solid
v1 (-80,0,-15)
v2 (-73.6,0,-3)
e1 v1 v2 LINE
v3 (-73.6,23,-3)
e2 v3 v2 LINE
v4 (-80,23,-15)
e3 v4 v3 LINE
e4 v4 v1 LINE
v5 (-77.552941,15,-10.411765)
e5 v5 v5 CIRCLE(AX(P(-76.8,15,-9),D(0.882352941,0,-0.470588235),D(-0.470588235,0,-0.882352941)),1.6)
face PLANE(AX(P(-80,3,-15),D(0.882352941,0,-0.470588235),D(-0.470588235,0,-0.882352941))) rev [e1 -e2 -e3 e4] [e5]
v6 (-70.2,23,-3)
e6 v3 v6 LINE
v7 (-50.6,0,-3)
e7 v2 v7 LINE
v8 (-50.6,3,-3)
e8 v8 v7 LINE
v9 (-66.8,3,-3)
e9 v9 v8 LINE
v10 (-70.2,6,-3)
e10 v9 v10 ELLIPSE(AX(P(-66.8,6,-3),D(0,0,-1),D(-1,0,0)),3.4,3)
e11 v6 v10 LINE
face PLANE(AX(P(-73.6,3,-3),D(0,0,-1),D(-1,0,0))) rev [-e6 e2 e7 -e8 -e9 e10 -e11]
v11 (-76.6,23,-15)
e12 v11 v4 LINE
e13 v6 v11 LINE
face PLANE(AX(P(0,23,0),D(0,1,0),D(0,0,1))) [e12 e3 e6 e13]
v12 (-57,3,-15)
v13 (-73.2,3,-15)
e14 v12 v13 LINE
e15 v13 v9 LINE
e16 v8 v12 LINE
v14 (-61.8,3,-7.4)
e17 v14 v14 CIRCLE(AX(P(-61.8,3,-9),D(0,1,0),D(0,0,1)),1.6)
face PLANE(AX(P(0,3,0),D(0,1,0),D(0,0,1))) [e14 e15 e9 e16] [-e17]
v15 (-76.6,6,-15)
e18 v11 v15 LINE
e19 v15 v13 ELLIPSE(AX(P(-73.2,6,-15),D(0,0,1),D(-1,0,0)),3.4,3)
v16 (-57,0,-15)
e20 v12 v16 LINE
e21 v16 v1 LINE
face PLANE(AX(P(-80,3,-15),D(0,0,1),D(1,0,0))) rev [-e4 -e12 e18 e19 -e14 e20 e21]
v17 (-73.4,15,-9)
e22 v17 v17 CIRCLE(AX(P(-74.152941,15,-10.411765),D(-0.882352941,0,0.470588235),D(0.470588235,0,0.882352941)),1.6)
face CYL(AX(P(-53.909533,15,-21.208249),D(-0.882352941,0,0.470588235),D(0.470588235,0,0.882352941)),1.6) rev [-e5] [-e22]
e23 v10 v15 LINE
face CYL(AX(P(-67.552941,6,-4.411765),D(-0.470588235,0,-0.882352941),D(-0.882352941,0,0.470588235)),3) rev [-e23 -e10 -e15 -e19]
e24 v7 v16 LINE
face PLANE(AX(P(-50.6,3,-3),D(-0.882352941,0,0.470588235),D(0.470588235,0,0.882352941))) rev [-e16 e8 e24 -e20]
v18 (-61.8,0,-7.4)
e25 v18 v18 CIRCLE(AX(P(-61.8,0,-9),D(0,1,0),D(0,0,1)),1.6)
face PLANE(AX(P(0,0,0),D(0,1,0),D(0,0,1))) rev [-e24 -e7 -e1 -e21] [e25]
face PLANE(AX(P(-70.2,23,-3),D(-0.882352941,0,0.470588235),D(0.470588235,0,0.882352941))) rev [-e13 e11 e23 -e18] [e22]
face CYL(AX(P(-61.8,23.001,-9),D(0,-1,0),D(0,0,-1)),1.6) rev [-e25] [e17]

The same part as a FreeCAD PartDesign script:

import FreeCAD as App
import Part
import Sketcher

V = App.Vector
Q = App.Units.Quantity


def edges_at(feature, points):
    """Names of the edges that pass closest to the given points."""
    edges = feature.Shape.Edges
    near = lambda p: min(range(len(edges)), key=lambda i: edges[i].distToShape(Part.Vertex(*p))[0])
    return sorted({f"Edge{near(p) + 1}" for p in points})

doc = App.newDocument("Part")
params = doc.addObject("Spreadsheet::Sheet", "Params")
for row, (alias, value) in enumerate([
    ("sketch1_width", "23 mm"),
    ("sketch1_length", "13.6 mm"),
    ("pad1_length", "3 mm"),
    ("sketch2_width", "3.4 mm"),
    ("pad2_length", "20 mm"),
    ("sketch3_diameter", "3.2 mm"),
    ("sketch4_diameter", "3.2 mm"),
    ("fillet_radius", "3 mm"),
], start=1):
    params.set(f"A{row}", alias)
    params.set(f"B{row}", "=" + value)
    params.setAlias(f"B{row}", alias)

body = doc.addObject("PartDesign::Body", "Body")

# Sketch on XZ plane
sketch1 = body.newObject("Sketcher::SketchObject", "Sketch")
sketch1.AttachmentSupport = (doc.getObject("XZ_Plane"), [""])
sketch1.MapMode = "FlatFace"
sketch1.addGeometry(Part.LineSegment(V(-57, -15, 0), V(-80, -15, 0)), False)
sketch1.addGeometry(Part.LineSegment(V(-80, -15, 0), V(-74, -3, 0)), False)
sketch1.addGeometry(Part.LineSegment(V(-74, -3, 0), V(-51, -3, 0)), False)
sketch1.addGeometry(Part.LineSegment(V(-51, -3, 0), V(-57, -15, 0)), False)
sketch1.addConstraint(Sketcher.Constraint("Coincident", 0, 2, 1, 1))
sketch1.addConstraint(Sketcher.Constraint("Coincident", 1, 2, 2, 1))
sketch1.addConstraint(Sketcher.Constraint("Coincident", 2, 2, 3, 1))
sketch1.addConstraint(Sketcher.Constraint("Coincident", 3, 2, 0, 1))
sketch1.addConstraint(Sketcher.Constraint("Horizontal", 0))
sketch1.addConstraint(Sketcher.Constraint("Horizontal", 2))
sketch1.addConstraint(Sketcher.Constraint("Parallel", 1, 3))
sketch1.addConstraint(Sketcher.Constraint("DistanceX", 0, 2, 0, 1, Q("23 mm")))
sketch1.addConstraint(Sketcher.Constraint("DistanceX", 0, 2, -1, 1, Q("80 mm")))
sketch1.addConstraint(Sketcher.Constraint("DistanceY", 0, 2, -1, 1, Q("15 mm")))
sketch1.addConstraint(Sketcher.Constraint("DistanceY", 1, 2, -1, 1, Q("3 mm")))
sketch1.addConstraint(Sketcher.Constraint("Distance", 1, Q("13.6 mm")))
sketch1.setExpression("Constraints[7]", "Params.sketch1_width")
sketch1.setExpression("Constraints[11]", "Params.sketch1_length")
pad1 = body.newObject("PartDesign::Pad", "Pad")
pad1.Profile = sketch1
pad1.setExpression("Length", "Params.pad1_length")
pad1.Reversed = True

# Sketch on XZ plane
sketch2 = body.newObject("Sketcher::SketchObject", "Sketch001")
sketch2.AttachmentSupport = (doc.getObject("XZ_Plane"), [""])
sketch2.MapMode = "FlatFace"
sketch2.AttachmentOffset = App.Placement(V(0, 0, -3), App.Rotation())
sketch2.addGeometry(Part.LineSegment(V(-80, -15, 0), V(-73.6, -3, 0)), False)
sketch2.addGeometry(Part.LineSegment(V(-73.6, -3, 0), V(-70.2, -3, 0)), False)
sketch2.addGeometry(Part.LineSegment(V(-70.2, -3, 0), V(-76.6, -15, 0)), False)
sketch2.addGeometry(Part.LineSegment(V(-76.6, -15, 0), V(-80, -15, 0)), False)
sketch2.addConstraint(Sketcher.Constraint("Coincident", 0, 2, 1, 1))
sketch2.addConstraint(Sketcher.Constraint("Coincident", 1, 2, 2, 1))
sketch2.addConstraint(Sketcher.Constraint("Coincident", 2, 2, 3, 1))
sketch2.addConstraint(Sketcher.Constraint("Coincident", 3, 2, 0, 1))
sketch2.addConstraint(Sketcher.Constraint("Horizontal", 1))
sketch2.addConstraint(Sketcher.Constraint("Horizontal", 3))
sketch2.addConstraint(Sketcher.Constraint("Parallel", 0, 2))
sketch2.addConstraint(Sketcher.Constraint("DistanceX", 1, 1, 1, 2, Q("3.4 mm")))
sketch2.addConstraint(Sketcher.Constraint("DistanceY", 0, 2, -1, 1, Q("3 mm")))
sketch2.addConstraint(Sketcher.Constraint("DistanceY", 2, 2, -1, 1, Q("15 mm")))
sketch2.addConstraint(Sketcher.Constraint("DistanceX", 3, 2, -1, 1, Q("80 mm")))
sketch2.addConstraint(Sketcher.Constraint("DistanceX", 2, 2, 0, 2, Q("3 mm")))
sketch2.setExpression("Constraints[7]", "Params.sketch2_width")
pad2 = body.newObject("PartDesign::Pad", "Pad001")
pad2.Profile = sketch2
pad2.setExpression("Length", "Params.pad2_length")
pad2.Reversed = True

# Sketch on XZ plane
sketch3 = body.newObject("Sketcher::SketchObject", "Sketch002")
sketch3.AttachmentSupport = (doc.getObject("XZ_Plane"), [""])
sketch3.MapMode = "FlatFace"
sketch3.addGeometry(Part.Circle(V(-61.8, -9, 0), V(0, 0, 1), 1.6), False)
sketch3.addConstraint(Sketcher.Constraint("Diameter", 0, Q("3.2 mm")))
sketch3.addConstraint(Sketcher.Constraint("DistanceY", 0, 3, -1, 1, Q("9 mm")))
sketch3.addConstraint(Sketcher.Constraint("DistanceX", 0, 3, -1, 1, Q("61.8 mm")))
sketch3.setExpression("Constraints[0]", "Params.sketch3_diameter")
pocket1 = body.newObject("PartDesign::Pocket", "Pocket")
pocket1.Profile = sketch3
pocket1.Type = "UpToFirst"

# Sketch on an angled plane
sketch4 = body.newObject("Sketcher::SketchObject", "Sketch003")
sketch4.Placement = App.Placement(V(-56.055363, 0, 29.896194), App.Rotation(V(-0.470588235, 0, -0.882352941), V(0, 0.999999999, 0), V(0.882352941, 0, -0.470588235), "ZXY"))
sketch4.addGeometry(Part.Circle(V(44.1, 15, 0), V(0, 0, 1), 1.6), False)
sketch4.addConstraint(Sketcher.Constraint("Diameter", 0, Q("3.2 mm")))
sketch4.addConstraint(Sketcher.Constraint("DistanceY", -1, 1, 0, 3, Q("15 mm")))
sketch4.addConstraint(Sketcher.Constraint("DistanceX", -1, 1, 0, 3, Q("44.082353 mm")))
sketch4.setExpression("Constraints[0]", "Params.sketch4_diameter")
pocket2 = body.newObject("PartDesign::Pocket", "Pocket001")
pocket2.Profile = sketch4
pocket2.Type = "UpToFirst"
pocket2.Reversed = True
doc.recompute()

fillet = body.newObject("PartDesign::Fillet", "Fillet")
fillet.Base = (pocket2, edges_at(pocket2, [(-73.4, 3, -9)]))
fillet.setExpression("Radius", "Params.fillet_radius")

doc.recompute()
